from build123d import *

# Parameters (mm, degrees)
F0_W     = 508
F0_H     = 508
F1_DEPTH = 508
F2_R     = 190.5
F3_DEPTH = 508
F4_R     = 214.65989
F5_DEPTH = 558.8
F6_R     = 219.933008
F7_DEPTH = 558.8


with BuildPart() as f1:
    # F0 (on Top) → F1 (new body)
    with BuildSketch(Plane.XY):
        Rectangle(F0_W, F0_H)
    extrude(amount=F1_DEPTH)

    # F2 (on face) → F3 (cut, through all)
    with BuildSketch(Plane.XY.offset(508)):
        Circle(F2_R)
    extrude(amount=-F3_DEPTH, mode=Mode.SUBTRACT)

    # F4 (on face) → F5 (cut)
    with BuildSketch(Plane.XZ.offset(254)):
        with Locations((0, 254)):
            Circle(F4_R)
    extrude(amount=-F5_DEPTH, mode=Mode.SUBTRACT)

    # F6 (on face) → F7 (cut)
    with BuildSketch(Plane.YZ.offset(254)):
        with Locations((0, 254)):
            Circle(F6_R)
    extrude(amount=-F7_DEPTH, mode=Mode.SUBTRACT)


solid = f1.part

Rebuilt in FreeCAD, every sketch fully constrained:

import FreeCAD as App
import Part
import Sketcher

V = App.Vector
Q = App.Units.Quantity

doc = App.newDocument("Part")
params = doc.addObject("Spreadsheet::Sheet", "Params")
for row, (alias, value) in enumerate([
    ("sketch1_width", "20 in"),
    ("pad1_length", "20 in"),
    ("sketch2_diameter", "15 in"),
    ("pocket2_length", "22 in"),
    ("pocket3_length", "22 in"),
], start=1):
    params.set(f"A{row}", alias)
    params.set(f"B{row}", "=" + value)
    params.setAlias(f"B{row}", alias)

body = doc.addObject("PartDesign::Body", "Body")

sketch1 = body.newObject("Sketcher::SketchObject", "Sketch")
sketch1.AttachmentSupport = (doc.getObject("XY_Plane"), [""])
sketch1.MapMode = "FlatFace"
sketch1.addGeometry(Part.LineSegment(V(-254, 254, 0), V(-254, -254, 0)), False)
sketch1.addGeometry(Part.LineSegment(V(-254, -254, 0), V(254, -254, 0)), False)
sketch1.addGeometry(Part.LineSegment(V(254, -254, 0), V(254, 254, 0)), False)
sketch1.addGeometry(Part.LineSegment(V(254, 254, 0), V(-254, 254, 0)), False)
sketch1.addConstraint(Sketcher.Constraint("Coincident", 0, 2, 1, 1))
sketch1.addConstraint(Sketcher.Constraint("Coincident", 1, 2, 2, 1))
sketch1.addConstraint(Sketcher.Constraint("Coincident", 2, 2, 3, 1))
sketch1.addConstraint(Sketcher.Constraint("Coincident", 3, 2, 0, 1))
sketch1.addConstraint(Sketcher.Constraint("Vertical", 0))
sketch1.addConstraint(Sketcher.Constraint("Horizontal", 1))
sketch1.addConstraint(Sketcher.Constraint("Vertical", 2))
sketch1.addConstraint(Sketcher.Constraint("Horizontal", 3))
sketch1.addConstraint(Sketcher.Constraint("Symmetric", 0, 2, 2, 2, -1, 1))
sketch1.addConstraint(Sketcher.Constraint("Equal", 3, 0))
sketch1.addConstraint(Sketcher.Constraint("DistanceX", 1, 1, 1, 2, Q("20 in")))
sketch1.setExpression("Constraints[10]", "Params.sketch1_width")
pad1 = body.newObject("PartDesign::Pad", "Pad")
pad1.Profile = sketch1
pad1.setExpression("Length", "Params.pad1_length")

sketch2 = body.newObject("Sketcher::SketchObject", "Sketch001")
sketch2.AttachmentSupport = (doc.getObject("XY_Plane"), [""])
sketch2.MapMode = "FlatFace"
sketch2.AttachmentOffset = App.Placement(V(0, 0, 20 * 25.4), App.Rotation())
sketch2.addGeometry(Part.Circle(V(0, 0, 0), V(0, 0, 1), 190), False)
sketch2.addConstraint(Sketcher.Constraint("Coincident", 0, 3, -1, 1))
sketch2.addConstraint(Sketcher.Constraint("Diameter", 0, Q("15 in")))
sketch2.setExpression("Constraints[1]", "Params.sketch2_diameter")
pocket1 = body.newObject("PartDesign::Pocket", "Pocket")
pocket1.Profile = sketch2
pocket1.Type = "ThroughAll"

sketch3 = body.newObject("Sketcher::SketchObject", "Sketch002")
sketch3.AttachmentSupport = (doc.getObject("XZ_Plane"), [""])
sketch3.MapMode = "FlatFace"
sketch3.AttachmentOffset = App.Placement(V(0, 0, 10 * 25.4), App.Rotation())
sketch3.addGeometry(Part.Circle(V(0, 254, 0), V(0, 0, 1), 215), False)
sketch3.addConstraint(Sketcher.Constraint("PointOnObject", 0, 3, -2))
sketch3.addConstraint(Sketcher.Constraint("DistanceY", -1, 1, 0, 3, Q("10 in")))
sketch3.addConstraint(Sketcher.Constraint("Diameter", 0, 429.31978))
pocket2 = body.newObject("PartDesign::Pocket", "Pocket001")
pocket2.Profile = sketch3
pocket2.setExpression("Length", "Params.pocket2_length")

sketch4 = body.newObject("Sketcher::SketchObject", "Sketch003")
sketch4.AttachmentSupport = (doc.getObject("YZ_Plane"), [""])
sketch4.MapMode = "FlatFace"
sketch4.AttachmentOffset = App.Placement(V(0, 0, 10 * 25.4), App.Rotation())
sketch4.addGeometry(Part.Circle(V(0, 254, 0), V(0, 0, 1), 220), False)
sketch4.addConstraint(Sketcher.Constraint("PointOnObject", 0, 3, -2))
sketch4.addConstraint(Sketcher.Constraint("DistanceY", -1, 1, 0, 3, Q("10 in")))
sketch4.addConstraint(Sketcher.Constraint("Diameter", 0, 439.866016))
pocket3 = body.newObject("PartDesign::Pocket", "Pocket002")
pocket3.Profile = sketch4
pocket3.setExpression("Length", "Params.pocket3_length")

doc.recompute()
